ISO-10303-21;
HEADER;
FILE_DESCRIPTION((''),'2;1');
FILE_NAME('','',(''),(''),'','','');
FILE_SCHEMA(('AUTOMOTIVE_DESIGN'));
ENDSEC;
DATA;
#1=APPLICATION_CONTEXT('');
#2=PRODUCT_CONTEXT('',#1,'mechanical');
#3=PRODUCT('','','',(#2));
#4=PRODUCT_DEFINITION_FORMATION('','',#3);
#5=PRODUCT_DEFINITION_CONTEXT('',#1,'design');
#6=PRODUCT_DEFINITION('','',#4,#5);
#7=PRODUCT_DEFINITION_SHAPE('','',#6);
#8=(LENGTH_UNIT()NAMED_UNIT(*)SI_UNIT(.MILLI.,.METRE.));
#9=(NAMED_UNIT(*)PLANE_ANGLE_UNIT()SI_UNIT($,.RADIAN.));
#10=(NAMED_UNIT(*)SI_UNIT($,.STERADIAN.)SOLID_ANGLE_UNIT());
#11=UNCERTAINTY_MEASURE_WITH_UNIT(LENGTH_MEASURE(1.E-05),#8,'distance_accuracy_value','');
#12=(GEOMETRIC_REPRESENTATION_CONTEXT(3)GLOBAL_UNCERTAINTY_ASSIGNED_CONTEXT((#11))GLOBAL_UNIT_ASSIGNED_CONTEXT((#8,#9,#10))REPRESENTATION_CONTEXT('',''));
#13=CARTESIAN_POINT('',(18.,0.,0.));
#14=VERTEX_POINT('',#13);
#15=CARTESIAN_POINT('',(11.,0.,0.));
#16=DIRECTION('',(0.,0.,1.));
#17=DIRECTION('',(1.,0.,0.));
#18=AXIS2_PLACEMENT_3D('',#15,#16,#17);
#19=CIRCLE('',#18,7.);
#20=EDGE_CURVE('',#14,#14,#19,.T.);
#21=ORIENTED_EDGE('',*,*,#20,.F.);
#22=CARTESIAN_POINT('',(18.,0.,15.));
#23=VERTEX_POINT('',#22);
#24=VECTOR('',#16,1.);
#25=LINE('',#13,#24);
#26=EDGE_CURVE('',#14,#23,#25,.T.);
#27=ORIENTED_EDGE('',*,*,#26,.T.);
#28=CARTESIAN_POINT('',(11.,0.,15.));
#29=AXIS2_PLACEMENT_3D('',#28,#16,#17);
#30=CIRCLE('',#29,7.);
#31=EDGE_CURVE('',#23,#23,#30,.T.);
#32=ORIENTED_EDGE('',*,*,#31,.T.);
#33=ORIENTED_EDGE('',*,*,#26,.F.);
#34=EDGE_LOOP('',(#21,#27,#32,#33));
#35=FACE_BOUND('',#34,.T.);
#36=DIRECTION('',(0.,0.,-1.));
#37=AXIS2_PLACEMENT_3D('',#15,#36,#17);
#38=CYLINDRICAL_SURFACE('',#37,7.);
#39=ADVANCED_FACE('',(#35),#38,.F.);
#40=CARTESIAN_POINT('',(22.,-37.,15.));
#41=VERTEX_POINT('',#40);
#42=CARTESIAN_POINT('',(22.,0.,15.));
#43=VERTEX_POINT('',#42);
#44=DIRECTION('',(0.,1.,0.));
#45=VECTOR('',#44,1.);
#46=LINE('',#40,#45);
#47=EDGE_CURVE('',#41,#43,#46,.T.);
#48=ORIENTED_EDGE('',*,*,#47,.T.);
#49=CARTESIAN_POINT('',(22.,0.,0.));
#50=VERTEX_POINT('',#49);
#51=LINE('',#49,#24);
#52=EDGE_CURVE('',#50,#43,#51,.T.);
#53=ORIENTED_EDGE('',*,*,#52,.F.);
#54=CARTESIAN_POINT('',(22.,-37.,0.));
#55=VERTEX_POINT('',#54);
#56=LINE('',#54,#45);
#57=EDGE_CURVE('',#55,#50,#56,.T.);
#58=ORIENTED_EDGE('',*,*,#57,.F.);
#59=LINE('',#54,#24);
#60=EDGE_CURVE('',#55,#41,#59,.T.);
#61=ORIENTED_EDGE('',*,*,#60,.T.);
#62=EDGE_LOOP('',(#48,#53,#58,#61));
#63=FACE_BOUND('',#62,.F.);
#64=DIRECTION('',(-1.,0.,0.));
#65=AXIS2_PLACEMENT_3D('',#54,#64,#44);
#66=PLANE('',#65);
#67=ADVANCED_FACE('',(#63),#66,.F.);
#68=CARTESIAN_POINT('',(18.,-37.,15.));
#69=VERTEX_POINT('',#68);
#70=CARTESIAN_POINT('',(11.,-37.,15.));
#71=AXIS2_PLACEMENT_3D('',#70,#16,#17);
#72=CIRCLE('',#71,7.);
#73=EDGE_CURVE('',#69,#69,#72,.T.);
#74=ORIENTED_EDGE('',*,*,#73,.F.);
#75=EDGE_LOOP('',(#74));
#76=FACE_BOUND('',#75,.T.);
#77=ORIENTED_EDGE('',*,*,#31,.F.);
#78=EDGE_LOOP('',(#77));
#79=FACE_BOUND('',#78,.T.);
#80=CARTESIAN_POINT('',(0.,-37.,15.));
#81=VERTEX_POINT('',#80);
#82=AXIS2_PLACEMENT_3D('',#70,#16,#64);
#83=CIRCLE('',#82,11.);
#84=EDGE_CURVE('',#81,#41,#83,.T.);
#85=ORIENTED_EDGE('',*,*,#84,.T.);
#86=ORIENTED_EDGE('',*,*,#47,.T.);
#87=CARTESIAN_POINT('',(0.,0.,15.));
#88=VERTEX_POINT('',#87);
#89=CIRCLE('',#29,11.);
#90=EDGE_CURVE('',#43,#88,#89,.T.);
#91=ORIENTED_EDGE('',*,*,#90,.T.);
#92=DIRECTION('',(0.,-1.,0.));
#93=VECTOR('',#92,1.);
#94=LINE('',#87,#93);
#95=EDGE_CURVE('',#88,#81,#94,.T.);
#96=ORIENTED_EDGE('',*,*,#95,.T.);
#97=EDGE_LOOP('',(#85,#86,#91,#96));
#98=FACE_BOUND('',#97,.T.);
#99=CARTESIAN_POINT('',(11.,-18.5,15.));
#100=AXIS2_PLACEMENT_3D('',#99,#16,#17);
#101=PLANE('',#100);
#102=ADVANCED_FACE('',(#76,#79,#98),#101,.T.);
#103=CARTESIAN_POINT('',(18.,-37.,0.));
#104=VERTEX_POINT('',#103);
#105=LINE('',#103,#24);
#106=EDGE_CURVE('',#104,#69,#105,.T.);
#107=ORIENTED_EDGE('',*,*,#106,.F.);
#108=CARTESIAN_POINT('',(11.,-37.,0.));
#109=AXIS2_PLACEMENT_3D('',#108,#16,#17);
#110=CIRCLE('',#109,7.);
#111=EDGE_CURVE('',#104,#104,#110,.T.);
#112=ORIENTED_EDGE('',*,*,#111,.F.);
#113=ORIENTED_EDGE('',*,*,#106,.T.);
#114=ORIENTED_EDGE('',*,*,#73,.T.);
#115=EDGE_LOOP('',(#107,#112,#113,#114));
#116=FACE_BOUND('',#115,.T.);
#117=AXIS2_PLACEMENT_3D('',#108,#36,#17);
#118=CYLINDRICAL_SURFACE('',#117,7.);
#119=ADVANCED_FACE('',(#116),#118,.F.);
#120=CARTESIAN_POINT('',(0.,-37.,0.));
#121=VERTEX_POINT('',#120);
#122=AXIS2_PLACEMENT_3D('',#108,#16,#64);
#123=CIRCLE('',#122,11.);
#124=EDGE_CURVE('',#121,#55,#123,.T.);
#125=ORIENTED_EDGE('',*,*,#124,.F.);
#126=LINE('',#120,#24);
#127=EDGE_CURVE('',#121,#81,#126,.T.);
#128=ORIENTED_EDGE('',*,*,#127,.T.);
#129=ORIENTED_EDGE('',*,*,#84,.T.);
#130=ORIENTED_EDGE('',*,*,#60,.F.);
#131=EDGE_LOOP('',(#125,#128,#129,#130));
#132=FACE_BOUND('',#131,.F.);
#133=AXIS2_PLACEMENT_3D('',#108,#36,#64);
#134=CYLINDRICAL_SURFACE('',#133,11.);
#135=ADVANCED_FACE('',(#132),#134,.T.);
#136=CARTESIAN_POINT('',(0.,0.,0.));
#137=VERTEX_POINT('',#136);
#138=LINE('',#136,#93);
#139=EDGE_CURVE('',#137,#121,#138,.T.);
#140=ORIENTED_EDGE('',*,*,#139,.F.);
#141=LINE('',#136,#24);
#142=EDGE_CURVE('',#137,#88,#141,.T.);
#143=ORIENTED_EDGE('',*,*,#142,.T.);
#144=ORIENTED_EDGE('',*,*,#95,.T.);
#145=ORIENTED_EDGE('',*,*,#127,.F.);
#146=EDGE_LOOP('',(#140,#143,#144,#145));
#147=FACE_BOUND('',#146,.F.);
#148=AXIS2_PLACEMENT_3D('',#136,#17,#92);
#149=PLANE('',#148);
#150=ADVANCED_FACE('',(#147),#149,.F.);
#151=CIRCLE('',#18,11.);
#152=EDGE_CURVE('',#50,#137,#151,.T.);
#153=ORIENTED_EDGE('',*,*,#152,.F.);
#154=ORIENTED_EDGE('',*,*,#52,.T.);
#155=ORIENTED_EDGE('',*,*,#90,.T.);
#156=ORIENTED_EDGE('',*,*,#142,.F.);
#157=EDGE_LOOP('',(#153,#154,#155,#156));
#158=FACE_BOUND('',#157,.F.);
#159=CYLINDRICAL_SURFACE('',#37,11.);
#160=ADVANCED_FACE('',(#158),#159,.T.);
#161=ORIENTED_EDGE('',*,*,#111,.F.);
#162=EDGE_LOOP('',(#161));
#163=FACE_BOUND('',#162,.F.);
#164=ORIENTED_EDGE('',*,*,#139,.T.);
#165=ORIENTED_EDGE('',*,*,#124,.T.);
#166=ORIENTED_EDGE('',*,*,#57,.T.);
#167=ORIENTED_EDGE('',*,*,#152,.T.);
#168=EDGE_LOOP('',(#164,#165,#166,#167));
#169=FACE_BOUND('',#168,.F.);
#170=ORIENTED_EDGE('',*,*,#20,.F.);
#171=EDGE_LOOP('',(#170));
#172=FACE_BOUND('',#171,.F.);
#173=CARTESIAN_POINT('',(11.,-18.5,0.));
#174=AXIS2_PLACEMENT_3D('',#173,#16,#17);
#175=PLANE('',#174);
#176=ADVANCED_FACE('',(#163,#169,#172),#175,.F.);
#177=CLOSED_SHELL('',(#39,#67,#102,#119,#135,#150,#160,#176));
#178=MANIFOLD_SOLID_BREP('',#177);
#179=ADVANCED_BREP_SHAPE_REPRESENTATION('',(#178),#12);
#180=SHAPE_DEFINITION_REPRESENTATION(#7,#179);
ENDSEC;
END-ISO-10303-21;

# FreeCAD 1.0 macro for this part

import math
import FreeCAD as App
import Part
import Sketcher
from FreeCAD import Vector
Q = App.Units.Quantity

doc = App.newDocument("Part")
body = doc.addObject("PartDesign::Body", "Body")

sketch1 = body.newObject("Sketcher::SketchObject", "Sketch")
sketch1.AttachmentSupport = (doc.getObject("XY_Plane"), [""])
sketch1.MapMode = "FlatFace"
sketch1.addGeometry([
    Part.LineSegment(Vector(0, 0, 0), Vector(0, -37, 0)),
    Part.ArcOfCircle(Part.Circle(Vector(11, -37, 0), Vector(0, 0, 1), 11), math.radians(180), math.radians(360)),
    Part.LineSegment(Vector(22, -37, 0), Vector(22, 0, 0)),
    Part.ArcOfCircle(Part.Circle(Vector(11, 0, 0), Vector(0, 0, 1), 11), math.radians(0), math.radians(180)),
    Part.Circle(Vector(11, -37, 0), Vector(0, 0, 1), 7),
    Part.Circle(Vector(11, 0, 0), Vector(0, 0, 1), 7),
], False)
sketch1.addConstraint([
    Sketcher.Constraint("Tangent", 0, 2, 1, 1),
    Sketcher.Constraint("Tangent", 1, 2, 2, 1),
    Sketcher.Constraint("Tangent", 2, 2, 3, 1),
    Sketcher.Constraint("Tangent", 3, 2, 0, 1),
    Sketcher.Constraint("Vertical", 0),
    Sketcher.Constraint("Vertical", 2),
    Sketcher.Constraint("Coincident", 3, 2, -1, 1),
    Sketcher.Constraint("Coincident", 4, 3, 1, 3),
    Sketcher.Constraint("Coincident", 5, 3, 3, 3),
    Sketcher.Constraint("Equal", 4, 5),
    Sketcher.Constraint("Diameter", 4, Q("14 mm")),
    Sketcher.Constraint("Radius", 1, Q("11 mm")),
    Sketcher.Constraint("DistanceY", 0, 2, 0, 1, Q("37 mm")),
])
pad1 = body.newObject("PartDesign::Pad", "Pad")
pad1.Profile = sketch1
pad1.Length = 15

doc.recompute()
